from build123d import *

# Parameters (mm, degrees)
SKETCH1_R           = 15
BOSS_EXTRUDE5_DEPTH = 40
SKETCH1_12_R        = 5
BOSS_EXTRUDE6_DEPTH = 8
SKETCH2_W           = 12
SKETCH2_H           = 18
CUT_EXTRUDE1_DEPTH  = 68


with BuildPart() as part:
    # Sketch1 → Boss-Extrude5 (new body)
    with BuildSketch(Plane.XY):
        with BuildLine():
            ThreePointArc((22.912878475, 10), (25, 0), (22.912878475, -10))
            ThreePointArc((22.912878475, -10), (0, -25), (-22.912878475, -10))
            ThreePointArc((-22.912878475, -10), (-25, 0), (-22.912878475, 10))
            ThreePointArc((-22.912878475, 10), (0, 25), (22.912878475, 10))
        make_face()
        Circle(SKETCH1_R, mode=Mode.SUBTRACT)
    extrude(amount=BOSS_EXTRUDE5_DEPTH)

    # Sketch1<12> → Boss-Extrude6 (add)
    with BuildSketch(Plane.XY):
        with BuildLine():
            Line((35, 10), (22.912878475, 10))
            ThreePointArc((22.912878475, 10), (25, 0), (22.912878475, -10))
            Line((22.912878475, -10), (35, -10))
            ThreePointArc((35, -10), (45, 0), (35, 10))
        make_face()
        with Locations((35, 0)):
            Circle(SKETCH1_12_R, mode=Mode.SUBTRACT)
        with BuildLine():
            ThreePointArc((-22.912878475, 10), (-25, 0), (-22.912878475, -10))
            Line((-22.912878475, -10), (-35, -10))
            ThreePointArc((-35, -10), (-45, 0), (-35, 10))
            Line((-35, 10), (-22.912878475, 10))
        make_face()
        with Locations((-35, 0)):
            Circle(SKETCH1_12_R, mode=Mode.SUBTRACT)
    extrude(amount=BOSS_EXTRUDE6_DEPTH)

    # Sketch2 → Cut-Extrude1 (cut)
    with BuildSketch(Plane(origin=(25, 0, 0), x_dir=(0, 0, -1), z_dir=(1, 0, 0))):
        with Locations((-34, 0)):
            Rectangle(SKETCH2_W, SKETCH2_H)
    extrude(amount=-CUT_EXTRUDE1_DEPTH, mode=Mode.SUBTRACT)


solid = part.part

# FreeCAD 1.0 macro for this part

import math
import FreeCAD as App
import Part
import Sketcher

doc = App.newDocument("Part")
body = doc.addObject("PartDesign::Body", "Body")

sketch1 = body.newObject("Sketcher::SketchObject", "Sketch")
sketch1.AttachmentSupport = (doc.getObject("XY_Plane"), [""])
sketch1.MapMode = "FlatFace"
sketch1.addGeometry([
    Part.ArcOfCircle(Part.Circle(App.Vector(0, 0, 0), App.Vector(0, 0, 1), 25), math.radians(-24), math.radians(24)),
    Part.ArcOfCircle(Part.Circle(App.Vector(0, 0, 0), App.Vector(0, 0, 1), 25), math.radians(24), math.radians(156)),
    Part.ArcOfCircle(Part.Circle(App.Vector(0, 0, 0), App.Vector(0, 0, 1), 25), math.radians(156), math.radians(204)),
    Part.ArcOfCircle(Part.Circle(App.Vector(0, 0, 0), App.Vector(0, 0, 1), 25), math.radians(-156), math.radians(-24)),
    Part.Circle(App.Vector(0, 0, 0), App.Vector(0, 0, 1), 15),
], False)
sketch1.addConstraint([
    Sketcher.Constraint("Tangent", 0, 2, 1, 1),
    Sketcher.Constraint("Tangent", 1, 2, 2, 1),
    Sketcher.Constraint("Tangent", 2, 2, 3, 1),
    Sketcher.Constraint("Tangent", 3, 2, 0, 1),
    Sketcher.Constraint("Coincident", 0, 3, -1, 1),
    Sketcher.Constraint("Coincident", 4, 3, -1, 1),
    Sketcher.Constraint("Equal", 0, 1),
    Sketcher.Constraint("Horizontal", 0, 2, 1, 2),
    Sketcher.Constraint("Horizontal", 2, 2, 3, 2),
    Sketcher.Constraint("Vertical", 1, 2, 2, 2),
    Sketcher.Constraint("Diameter", 4, 30.0),
    Sketcher.Constraint("Radius", 0, 25.0),
    Sketcher.Constraint("DistanceY", -1, 1, 0, 2, 10.0),
])
pad1 = body.newObject("PartDesign::Pad", "Pad")
pad1.Profile = sketch1
pad1.Length = 40

sketch2 = body.newObject("Sketcher::SketchObject", "Sketch001")
sketch2.AttachmentSupport = (doc.getObject("XY_Plane"), [""])
sketch2.MapMode = "FlatFace"
sketch2.addGeometry([
    Part.LineSegment(App.Vector(35, 10, 0), App.Vector(23, 10, 0)),
    Part.ArcOfCircle(Part.Circle(App.Vector(0, 0, 0), App.Vector(0, 0, 1), 25), math.radians(-24), math.radians(24)),
    Part.LineSegment(App.Vector(23, -10, 0), App.Vector(35, -10, 0)),
    Part.ArcOfCircle(Part.Circle(App.Vector(35, 0, 0), App.Vector(0, 0, 1), 10), math.radians(-90), math.radians(90)),
    Part.Circle(App.Vector(35, 0, 0), App.Vector(0, 0, 1), 5),
    Part.ArcOfCircle(Part.Circle(App.Vector(0, 0, 0), App.Vector(0, 0, 1), 25), math.radians(156), math.radians(204)),
    Part.LineSegment(App.Vector(-23, 10, 0), App.Vector(-35, 10, 0)),
    Part.ArcOfCircle(Part.Circle(App.Vector(-35, 0, 0), App.Vector(0, 0, 1), 10), math.radians(90), math.radians(270)),
    Part.LineSegment(App.Vector(-35, -10, 0), App.Vector(-23, -10, 0)),
    Part.Circle(App.Vector(-35, 0, 0), App.Vector(0, 0, 1), 5),
], False)
sketch2.addConstraint([
    Sketcher.Constraint("Coincident", 0, 2, 1, 2),
    Sketcher.Constraint("Coincident", 1, 1, 2, 1),
    Sketcher.Constraint("Tangent", 2, 2, 3, 1),
    Sketcher.Constraint("Tangent", 3, 2, 0, 1),
    Sketcher.Constraint("Coincident", 5, 1, 6, 1),
    Sketcher.Constraint("Tangent", 6, 2, 7, 1),
    Sketcher.Constraint("Tangent", 7, 2, 8, 1),
    Sketcher.Constraint("Coincident", 8, 2, 5, 2),
    Sketcher.Constraint("Horizontal", 0),
    Sketcher.Constraint("Horizontal", 2),
    Sketcher.Constraint("Horizontal", 6),
    Sketcher.Constraint("Horizontal", 8),
    Sketcher.Constraint("Coincident", 1, 3, -1, 1),
    Sketcher.Constraint("Coincident", 5, 3, -1, 1),
    Sketcher.Constraint("Coincident", 4, 3, 3, 3),
    Sketcher.Constraint("Coincident", 9, 3, 7, 3),
    Sketcher.Constraint("Equal", 1, 5),
    Sketcher.Constraint("Equal", 3, 7),
    Sketcher.Constraint("Equal", 4, 9),
    Sketcher.Constraint("Symmetric", 3, 3, 7, 3, -1, 1),
    Sketcher.Constraint("PointOnObject", 3, 3, -1),
    Sketcher.Constraint("Diameter", 4, 10.0),
    Sketcher.Constraint("Radius", 1, 25.0),
    Sketcher.Constraint("Radius", 3, 10.0),
    Sketcher.Constraint("DistanceX", -1, 1, 3, 3, 35.0),
])
pad2 = body.newObject("PartDesign::Pad", "Pad001")
pad2.Profile = sketch2
pad2.Length = 8

sketch3 = body.newObject("Sketcher::SketchObject", "Sketch002")
sketch3.AttachmentSupport = (doc.getObject("YZ_Plane"), [""])
sketch3.MapMode = "FlatFace"
sketch3.AttachmentOffset = App.Placement(App.Vector(0, 0, 25), App.Rotation())
sketch3.addGeometry([
    Part.LineSegment(App.Vector(9, 40, 0), App.Vector(-9, 40, 0)),
    Part.LineSegment(App.Vector(-9, 40, 0), App.Vector(-9, 28, 0)),
    Part.LineSegment(App.Vector(-9, 28, 0), App.Vector(9, 28, 0)),
    Part.LineSegment(App.Vector(9, 28, 0), App.Vector(9, 40, 0)),
], False)
sketch3.addConstraint([
    Sketcher.Constraint("Coincident", 0, 2, 1, 1),
    Sketcher.Constraint("Coincident", 1, 2, 2, 1),
    Sketcher.Constraint("Coincident", 2, 2, 3, 1),
    Sketcher.Constraint("Coincident", 3, 2, 0, 1),
    Sketcher.Constraint("Horizontal", 0),
    Sketcher.Constraint("Vertical", 1),
    Sketcher.Constraint("Horizontal", 2),
    Sketcher.Constraint("Vertical", 3),
    Sketcher.Constraint("DistanceX", 0, 2, 0, 1, 18.0),
    Sketcher.Constraint("DistanceY", 1, 2, 1, 1, 12.0),
    Sketcher.Constraint("DistanceX", 0, 2, -1, 1, 9.0),
    Sketcher.Constraint("DistanceY", -1, 1, 0, 2, 40.0),
])
pocket1 = body.newObject("PartDesign::Pocket", "Pocket")
pocket1.Profile = sketch3
pocket1.Length = 68

doc.recompute()
